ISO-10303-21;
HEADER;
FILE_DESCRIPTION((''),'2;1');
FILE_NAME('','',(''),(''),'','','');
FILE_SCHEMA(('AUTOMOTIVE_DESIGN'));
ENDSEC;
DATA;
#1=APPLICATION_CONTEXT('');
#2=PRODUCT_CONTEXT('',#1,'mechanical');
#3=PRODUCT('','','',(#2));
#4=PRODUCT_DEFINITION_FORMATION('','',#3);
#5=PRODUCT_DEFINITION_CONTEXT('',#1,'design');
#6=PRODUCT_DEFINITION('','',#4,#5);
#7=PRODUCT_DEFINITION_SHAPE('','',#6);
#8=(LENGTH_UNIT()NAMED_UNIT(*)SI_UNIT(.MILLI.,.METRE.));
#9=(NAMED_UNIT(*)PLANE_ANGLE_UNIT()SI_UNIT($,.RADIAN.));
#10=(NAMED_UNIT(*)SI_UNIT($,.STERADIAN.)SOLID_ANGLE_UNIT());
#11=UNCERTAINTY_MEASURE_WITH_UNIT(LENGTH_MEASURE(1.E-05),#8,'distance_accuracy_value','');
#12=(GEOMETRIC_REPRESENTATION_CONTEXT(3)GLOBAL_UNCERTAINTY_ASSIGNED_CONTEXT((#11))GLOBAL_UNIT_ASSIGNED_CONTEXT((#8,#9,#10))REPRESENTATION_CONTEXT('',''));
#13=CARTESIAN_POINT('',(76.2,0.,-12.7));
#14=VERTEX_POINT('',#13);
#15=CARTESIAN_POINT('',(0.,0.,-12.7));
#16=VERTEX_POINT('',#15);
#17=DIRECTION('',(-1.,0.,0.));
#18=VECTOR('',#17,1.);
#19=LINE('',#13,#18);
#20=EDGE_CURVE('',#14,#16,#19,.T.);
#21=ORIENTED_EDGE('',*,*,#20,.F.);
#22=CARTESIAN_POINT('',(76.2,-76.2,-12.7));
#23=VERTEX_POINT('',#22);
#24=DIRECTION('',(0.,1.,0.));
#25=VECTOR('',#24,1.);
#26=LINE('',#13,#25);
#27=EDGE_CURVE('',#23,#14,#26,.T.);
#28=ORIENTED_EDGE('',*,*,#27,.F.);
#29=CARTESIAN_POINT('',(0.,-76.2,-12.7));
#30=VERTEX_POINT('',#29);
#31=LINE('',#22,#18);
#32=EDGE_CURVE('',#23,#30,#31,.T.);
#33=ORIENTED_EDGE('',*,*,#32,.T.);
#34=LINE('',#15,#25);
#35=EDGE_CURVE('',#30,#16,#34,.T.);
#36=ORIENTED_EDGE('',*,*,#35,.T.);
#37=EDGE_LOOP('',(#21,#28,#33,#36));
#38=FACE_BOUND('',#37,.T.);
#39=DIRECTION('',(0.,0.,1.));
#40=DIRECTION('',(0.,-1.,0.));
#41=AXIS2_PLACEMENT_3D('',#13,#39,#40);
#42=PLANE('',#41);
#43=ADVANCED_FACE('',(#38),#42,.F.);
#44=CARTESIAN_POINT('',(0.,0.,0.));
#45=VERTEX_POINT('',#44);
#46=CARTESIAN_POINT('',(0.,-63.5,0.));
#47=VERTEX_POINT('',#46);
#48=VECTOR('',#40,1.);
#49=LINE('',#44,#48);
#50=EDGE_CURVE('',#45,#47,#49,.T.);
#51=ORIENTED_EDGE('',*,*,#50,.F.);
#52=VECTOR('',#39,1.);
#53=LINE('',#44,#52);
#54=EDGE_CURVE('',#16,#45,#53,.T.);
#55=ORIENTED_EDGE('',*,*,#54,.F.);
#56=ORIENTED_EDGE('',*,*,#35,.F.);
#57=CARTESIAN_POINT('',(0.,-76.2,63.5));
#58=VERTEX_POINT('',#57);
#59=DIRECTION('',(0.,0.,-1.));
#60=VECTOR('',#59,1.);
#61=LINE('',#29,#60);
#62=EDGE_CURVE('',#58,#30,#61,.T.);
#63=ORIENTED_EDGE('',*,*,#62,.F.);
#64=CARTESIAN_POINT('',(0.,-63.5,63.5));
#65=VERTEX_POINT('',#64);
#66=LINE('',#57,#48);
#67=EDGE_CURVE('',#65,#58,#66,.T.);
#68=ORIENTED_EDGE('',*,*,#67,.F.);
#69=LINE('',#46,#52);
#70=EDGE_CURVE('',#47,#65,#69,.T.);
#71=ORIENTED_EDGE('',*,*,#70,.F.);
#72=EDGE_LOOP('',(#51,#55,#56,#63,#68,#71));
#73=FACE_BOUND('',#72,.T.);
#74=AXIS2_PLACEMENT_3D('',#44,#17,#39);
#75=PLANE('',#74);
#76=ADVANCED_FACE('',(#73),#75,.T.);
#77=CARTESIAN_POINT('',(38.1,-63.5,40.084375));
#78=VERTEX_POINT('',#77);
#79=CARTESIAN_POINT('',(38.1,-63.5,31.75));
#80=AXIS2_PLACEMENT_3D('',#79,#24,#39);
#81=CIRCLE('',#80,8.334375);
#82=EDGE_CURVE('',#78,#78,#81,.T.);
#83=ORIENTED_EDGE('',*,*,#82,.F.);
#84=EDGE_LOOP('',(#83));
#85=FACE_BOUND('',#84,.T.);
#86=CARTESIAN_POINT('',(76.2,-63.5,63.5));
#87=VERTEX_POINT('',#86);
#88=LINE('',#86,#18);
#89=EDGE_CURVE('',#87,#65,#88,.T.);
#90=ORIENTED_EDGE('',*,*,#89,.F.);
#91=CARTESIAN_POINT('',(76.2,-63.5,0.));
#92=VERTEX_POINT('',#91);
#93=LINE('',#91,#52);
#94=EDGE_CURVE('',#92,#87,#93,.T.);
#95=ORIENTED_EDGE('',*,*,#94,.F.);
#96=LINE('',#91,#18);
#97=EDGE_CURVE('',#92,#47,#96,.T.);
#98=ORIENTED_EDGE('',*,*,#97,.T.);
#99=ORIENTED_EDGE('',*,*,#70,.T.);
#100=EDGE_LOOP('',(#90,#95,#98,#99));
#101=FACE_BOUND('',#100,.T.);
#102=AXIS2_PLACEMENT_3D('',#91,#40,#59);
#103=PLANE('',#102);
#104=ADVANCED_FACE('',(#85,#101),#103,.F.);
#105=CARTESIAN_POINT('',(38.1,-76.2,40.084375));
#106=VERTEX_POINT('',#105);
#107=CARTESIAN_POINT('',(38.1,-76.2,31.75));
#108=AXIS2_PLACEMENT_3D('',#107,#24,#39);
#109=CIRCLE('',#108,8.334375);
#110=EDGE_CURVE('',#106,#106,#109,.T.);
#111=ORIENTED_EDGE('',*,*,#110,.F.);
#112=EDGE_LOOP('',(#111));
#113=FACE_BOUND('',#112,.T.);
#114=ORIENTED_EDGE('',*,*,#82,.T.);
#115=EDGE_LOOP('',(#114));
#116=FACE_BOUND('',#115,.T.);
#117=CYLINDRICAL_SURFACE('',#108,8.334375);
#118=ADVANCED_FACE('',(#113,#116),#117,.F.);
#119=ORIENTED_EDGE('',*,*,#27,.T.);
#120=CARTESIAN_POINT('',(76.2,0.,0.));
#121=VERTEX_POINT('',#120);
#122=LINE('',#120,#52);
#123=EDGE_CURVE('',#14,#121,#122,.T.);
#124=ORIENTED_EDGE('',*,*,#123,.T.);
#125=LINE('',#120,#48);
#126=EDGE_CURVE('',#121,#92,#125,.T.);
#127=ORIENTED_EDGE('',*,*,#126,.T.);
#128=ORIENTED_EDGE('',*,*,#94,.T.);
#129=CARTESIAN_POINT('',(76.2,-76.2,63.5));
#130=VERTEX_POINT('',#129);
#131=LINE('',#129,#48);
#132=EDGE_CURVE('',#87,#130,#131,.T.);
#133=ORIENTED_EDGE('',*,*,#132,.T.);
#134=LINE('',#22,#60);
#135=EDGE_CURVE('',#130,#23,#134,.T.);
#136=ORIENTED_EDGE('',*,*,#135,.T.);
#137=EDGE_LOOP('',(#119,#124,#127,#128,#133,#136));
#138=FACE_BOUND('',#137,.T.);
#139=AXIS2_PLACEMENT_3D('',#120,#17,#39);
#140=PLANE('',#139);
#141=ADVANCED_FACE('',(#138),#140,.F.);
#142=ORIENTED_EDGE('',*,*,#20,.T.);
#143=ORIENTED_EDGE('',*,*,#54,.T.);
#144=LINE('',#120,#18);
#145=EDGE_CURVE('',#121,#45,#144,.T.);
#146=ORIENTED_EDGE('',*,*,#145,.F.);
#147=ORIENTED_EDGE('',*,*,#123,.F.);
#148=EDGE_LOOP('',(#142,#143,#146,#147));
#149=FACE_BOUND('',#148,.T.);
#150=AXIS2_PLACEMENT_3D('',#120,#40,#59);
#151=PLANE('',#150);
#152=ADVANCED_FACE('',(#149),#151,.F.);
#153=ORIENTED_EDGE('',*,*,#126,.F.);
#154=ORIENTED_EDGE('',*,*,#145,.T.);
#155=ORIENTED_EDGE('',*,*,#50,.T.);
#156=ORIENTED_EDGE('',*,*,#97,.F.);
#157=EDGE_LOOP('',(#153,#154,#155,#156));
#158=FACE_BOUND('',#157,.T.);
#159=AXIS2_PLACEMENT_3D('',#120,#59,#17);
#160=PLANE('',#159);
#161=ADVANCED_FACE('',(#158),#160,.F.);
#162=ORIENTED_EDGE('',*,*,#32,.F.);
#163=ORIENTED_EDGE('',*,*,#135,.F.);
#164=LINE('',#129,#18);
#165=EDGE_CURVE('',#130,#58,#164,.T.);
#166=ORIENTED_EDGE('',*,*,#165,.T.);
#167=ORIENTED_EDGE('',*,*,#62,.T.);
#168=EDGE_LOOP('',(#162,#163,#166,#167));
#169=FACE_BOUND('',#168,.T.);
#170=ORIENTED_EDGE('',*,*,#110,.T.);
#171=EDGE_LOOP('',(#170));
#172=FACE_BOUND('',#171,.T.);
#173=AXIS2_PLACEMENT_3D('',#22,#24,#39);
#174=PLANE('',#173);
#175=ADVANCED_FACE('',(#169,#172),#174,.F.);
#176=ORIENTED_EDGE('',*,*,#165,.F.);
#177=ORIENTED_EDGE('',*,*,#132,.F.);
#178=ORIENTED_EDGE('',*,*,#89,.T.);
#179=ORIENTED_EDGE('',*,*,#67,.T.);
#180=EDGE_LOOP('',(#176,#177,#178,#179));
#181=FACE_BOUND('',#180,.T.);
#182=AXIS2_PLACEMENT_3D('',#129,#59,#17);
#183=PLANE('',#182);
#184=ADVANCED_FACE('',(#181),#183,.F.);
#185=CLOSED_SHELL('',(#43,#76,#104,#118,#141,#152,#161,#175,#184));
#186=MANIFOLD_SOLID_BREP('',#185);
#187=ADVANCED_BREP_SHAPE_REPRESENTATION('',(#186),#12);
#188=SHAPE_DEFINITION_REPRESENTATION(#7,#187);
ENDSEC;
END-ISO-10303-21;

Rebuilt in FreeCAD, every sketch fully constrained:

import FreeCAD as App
import Part
import Sketcher
Q = App.Units.Quantity


def add_polygon(sketch, points):
    """Adds a closed chain of lines whose ends are joined by coincident constraints."""
    first, n = sketch.GeometryCount, len(points)
    for a, b in zip(points, points[1:] + points[:1]):
        sketch.addGeometry(Part.LineSegment(App.Vector(*a, 0), App.Vector(*b, 0)), False)
    for i in range(n):
        sketch.addConstraint(Sketcher.Constraint("Coincident", first + i, 2, first + (i + 1) % n, 1))

doc = App.newDocument("Part")
body = doc.addObject("PartDesign::Body", "Body")

# Sketch on YZ plane
sketch1 = body.newObject("Sketcher::SketchObject", "Sketch")
sketch1.AttachmentSupport = (doc.getObject("YZ_Plane"), [""])
sketch1.MapMode = "FlatFace"
add_polygon(sketch1, [(0, -13), (0, 0), (-64, 0), (-64, 64), (-76, 64), (-76, -13)])  # lines 0-5
sketch1.addConstraint([
    Sketcher.Constraint("Vertical", 0),
    Sketcher.Constraint("Horizontal", 1),
    Sketcher.Constraint("Vertical", 2),
    Sketcher.Constraint("Horizontal", 3),
    Sketcher.Constraint("Vertical", 4),
    Sketcher.Constraint("Horizontal", 5),
    Sketcher.Constraint("Coincident", 0, 2, -1, 1),
    Sketcher.Constraint("Equal", 3, 0),
    Sketcher.Constraint("Equal", 1, 2),
    Sketcher.Constraint("DistanceX", 5, 1, 5, 2, Q("3 in")),
    Sketcher.Constraint("DistanceX", 1, 2, 1, 1, Q("2.5 in")),
])
pad1 = body.newObject("PartDesign::Pad", "Pad")
pad1.Profile = sketch1
pad1.Length = Q("3 in")

# Sketch on XZ plane
sketch2 = body.newObject("Sketcher::SketchObject", "Sketch001")
sketch2.AttachmentSupport = (doc.getObject("XZ_Plane"), [""])
sketch2.MapMode = "FlatFace"
sketch2.AttachmentOffset = App.Placement(App.Vector(0, 0, 2.5 * 25.4), App.Rotation())
sketch2.addGeometry(Part.Circle(App.Vector(38, 32, 0), App.Vector(0, 0, 1), 8), False)
sketch2.addConstraint([
    Sketcher.Constraint("Diameter", 0, Q("0.65625 in")),
    Sketcher.Constraint("DistanceX", -1, 1, 0, 3, Q("1.5 in")),
    Sketcher.Constraint("DistanceY", -1, 1, 0, 3, Q("1.25 in")),
])
pocket1 = body.newObject("PartDesign::Pocket", "Pocket")
pocket1.Profile = sketch2
pocket1.Length = Q("0.5 in")
pocket1.Reversed = True

doc.recompute()
